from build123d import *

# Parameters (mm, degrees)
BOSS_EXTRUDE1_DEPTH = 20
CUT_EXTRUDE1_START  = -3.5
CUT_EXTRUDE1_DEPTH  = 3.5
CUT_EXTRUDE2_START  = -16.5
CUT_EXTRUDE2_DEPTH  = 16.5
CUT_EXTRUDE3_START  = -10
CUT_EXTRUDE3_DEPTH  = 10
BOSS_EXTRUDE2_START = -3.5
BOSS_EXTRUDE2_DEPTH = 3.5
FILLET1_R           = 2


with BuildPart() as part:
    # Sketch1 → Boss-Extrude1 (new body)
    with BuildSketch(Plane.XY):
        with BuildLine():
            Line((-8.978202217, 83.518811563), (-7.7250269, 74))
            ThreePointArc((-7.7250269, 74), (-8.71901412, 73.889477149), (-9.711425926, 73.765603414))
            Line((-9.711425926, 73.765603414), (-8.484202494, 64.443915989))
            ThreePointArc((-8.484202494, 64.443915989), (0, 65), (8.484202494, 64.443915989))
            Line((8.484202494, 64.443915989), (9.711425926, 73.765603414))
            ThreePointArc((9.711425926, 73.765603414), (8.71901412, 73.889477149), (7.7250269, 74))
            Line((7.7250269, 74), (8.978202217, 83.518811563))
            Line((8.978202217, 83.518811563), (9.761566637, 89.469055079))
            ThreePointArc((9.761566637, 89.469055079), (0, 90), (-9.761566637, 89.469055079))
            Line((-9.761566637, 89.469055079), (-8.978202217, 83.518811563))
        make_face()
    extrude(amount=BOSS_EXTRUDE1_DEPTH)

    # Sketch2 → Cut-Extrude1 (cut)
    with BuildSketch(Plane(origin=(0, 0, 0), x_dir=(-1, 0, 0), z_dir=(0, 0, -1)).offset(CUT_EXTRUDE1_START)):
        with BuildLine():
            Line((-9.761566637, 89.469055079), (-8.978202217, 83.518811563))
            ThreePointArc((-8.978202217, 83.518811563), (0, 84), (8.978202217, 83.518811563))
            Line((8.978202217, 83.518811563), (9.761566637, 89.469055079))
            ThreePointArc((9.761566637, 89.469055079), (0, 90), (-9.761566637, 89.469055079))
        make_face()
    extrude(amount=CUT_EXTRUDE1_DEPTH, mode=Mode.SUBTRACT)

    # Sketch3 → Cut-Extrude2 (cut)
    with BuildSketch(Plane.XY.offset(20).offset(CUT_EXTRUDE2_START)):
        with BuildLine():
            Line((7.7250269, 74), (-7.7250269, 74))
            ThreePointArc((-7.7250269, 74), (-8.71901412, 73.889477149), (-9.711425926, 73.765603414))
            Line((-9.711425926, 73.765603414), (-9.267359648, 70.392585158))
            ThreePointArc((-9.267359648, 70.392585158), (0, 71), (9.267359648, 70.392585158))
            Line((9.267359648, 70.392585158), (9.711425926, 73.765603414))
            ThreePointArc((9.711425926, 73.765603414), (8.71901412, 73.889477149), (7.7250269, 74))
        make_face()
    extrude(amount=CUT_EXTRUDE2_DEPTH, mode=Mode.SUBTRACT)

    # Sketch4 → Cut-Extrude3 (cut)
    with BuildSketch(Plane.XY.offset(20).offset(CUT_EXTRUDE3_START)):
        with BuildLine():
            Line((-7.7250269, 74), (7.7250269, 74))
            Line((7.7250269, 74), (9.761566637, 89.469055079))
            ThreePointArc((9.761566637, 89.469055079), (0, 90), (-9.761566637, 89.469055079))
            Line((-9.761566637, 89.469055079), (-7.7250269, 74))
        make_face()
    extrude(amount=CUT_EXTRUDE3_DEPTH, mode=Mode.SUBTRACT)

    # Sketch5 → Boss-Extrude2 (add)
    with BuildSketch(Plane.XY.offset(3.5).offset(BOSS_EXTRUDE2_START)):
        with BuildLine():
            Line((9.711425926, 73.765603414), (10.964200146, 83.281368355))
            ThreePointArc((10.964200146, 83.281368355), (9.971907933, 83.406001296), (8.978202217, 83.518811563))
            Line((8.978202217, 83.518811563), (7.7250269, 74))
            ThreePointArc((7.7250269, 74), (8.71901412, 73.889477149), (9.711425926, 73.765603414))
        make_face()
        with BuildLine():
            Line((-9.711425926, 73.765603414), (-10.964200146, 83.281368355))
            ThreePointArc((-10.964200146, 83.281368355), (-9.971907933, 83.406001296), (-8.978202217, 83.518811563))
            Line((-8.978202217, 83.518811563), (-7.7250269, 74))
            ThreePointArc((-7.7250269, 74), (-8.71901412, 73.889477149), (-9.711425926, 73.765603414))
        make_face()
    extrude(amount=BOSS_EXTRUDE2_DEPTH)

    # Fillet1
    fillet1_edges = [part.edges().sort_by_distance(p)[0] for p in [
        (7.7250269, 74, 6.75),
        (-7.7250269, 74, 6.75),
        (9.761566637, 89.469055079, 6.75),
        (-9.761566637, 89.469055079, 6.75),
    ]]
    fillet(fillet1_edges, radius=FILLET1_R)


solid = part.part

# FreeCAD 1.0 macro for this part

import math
import FreeCAD as App
import Part
import Sketcher

V = App.Vector
Q = App.Units.Quantity


def edges_at(feature, points):
    """Names of the edges that pass closest to the given points."""
    edges = feature.Shape.Edges
    near = lambda p: min(range(len(edges)), key=lambda i: edges[i].distToShape(Part.Vertex(*p))[0])
    return sorted({f"Edge{near(p) + 1}" for p in points})

doc = App.newDocument("Part")
params = doc.addObject("Spreadsheet::Sheet", "Params")
for row, (alias, value) in enumerate([
    ("sketch1_radius", "65 mm"),
    ("sketch1_radius2", "90 mm"),
    ("pad1_length", "20 mm"),
    ("sketch2_radius", "84 mm"),
    ("sketch2_radius2", "90 mm"),
    ("pocket1_length", "3.5 mm"),
    ("sketch3_radius", "71 mm"),
    ("pocket2_length", "16.5 mm"),
    ("sketch4_radius", "90 mm"),
    ("pocket3_length", "10 mm"),
    ("pad2_length", "3.5 mm"),
    ("fillet_radius", "2 mm"),
], start=1):
    params.set(f"A{row}", alias)
    params.set(f"B{row}", "=" + value)
    params.setAlias(f"B{row}", alias)

body = doc.addObject("PartDesign::Body", "Body")

sketch1 = body.newObject("Sketcher::SketchObject", "Sketch")
sketch1.AttachmentSupport = (doc.getObject("XY_Plane"), [""])
sketch1.MapMode = "FlatFace"
sketch1.addGeometry(Part.LineSegment(V(-8.978202, 83.518812, 0), V(-7.725027, 74, 0)), False)
sketch1.addGeometry(Part.ArcOfCircle(Part.Circle(V(0, 0, 0), V(0, 0, 1), 74.402124), math.radians(95.959649), math.radians(97.5)), False)
sketch1.addGeometry(Part.LineSegment(V(-9.711426, 73.765603, 0), V(-8.484202, 64.443916, 0)), False)
sketch1.addGeometry(Part.ArcOfCircle(Part.Circle(V(0, 0, 0), V(0, 0, 1), 65), math.radians(82.5), math.radians(97.5)), False)
sketch1.addGeometry(Part.LineSegment(V(8.484202, 64.443916, 0), V(9.711426, 73.765603, 0)), False)
sketch1.addGeometry(Part.ArcOfCircle(Part.Circle(V(0, 0, 0), V(0, 0, 1), 74.402124), math.radians(82.5), math.radians(84.040351)), False)
sketch1.addGeometry(Part.LineSegment(V(7.725027, 74, 0), V(8.978202, 83.518812, 0)), False)
sketch1.addGeometry(Part.LineSegment(V(8.978202, 83.518812, 0), V(9.761567, 89.469055, 0)), False)
sketch1.addGeometry(Part.ArcOfCircle(Part.Circle(V(0, 0, 0), V(0, 0, 1), 90), math.radians(83.773344), math.radians(96.226656)), False)
sketch1.addGeometry(Part.LineSegment(V(-9.761567, 89.469055, 0), V(-8.978202, 83.518812, 0)), False)
sketch1.addConstraint(Sketcher.Constraint("Coincident", 0, 2, 1, 1))
sketch1.addConstraint(Sketcher.Constraint("Coincident", 1, 2, 2, 1))
sketch1.addConstraint(Sketcher.Constraint("Coincident", 2, 2, 3, 2))
sketch1.addConstraint(Sketcher.Constraint("Coincident", 3, 1, 4, 1))
sketch1.addConstraint(Sketcher.Constraint("Coincident", 4, 2, 5, 1))
sketch1.addConstraint(Sketcher.Constraint("Coincident", 5, 2, 6, 1))
sketch1.addConstraint(Sketcher.Constraint("Coincident", 6, 2, 7, 1))
sketch1.addConstraint(Sketcher.Constraint("Coincident", 7, 2, 8, 1))
sketch1.addConstraint(Sketcher.Constraint("Coincident", 8, 2, 9, 1))
sketch1.addConstraint(Sketcher.Constraint("Coincident", 9, 2, 0, 1))
sketch1.addConstraint(Sketcher.Constraint("Coincident", 1, 3, -1, 1))
sketch1.addConstraint(Sketcher.Constraint("Coincident", 3, 3, -1, 1))
sketch1.addConstraint(Sketcher.Constraint("Coincident", 5, 3, -1, 1))
sketch1.addConstraint(Sketcher.Constraint("Coincident", 8, 3, -1, 1))
sketch1.addConstraint(Sketcher.Constraint("Equal", 1, 5))
sketch1.addConstraint(Sketcher.Constraint("Symmetric", 6, 2, 9, 2, -2))
sketch1.addConstraint(Sketcher.Constraint("Parallel", 0, 2))
sketch1.addConstraint(Sketcher.Constraint("Parallel", 4, 6))
sketch1.addConstraint(Sketcher.Constraint("Parallel", 6, 7))
sketch1.addConstraint(Sketcher.Constraint("Parallel", 2, 9))
sketch1.addConstraint(Sketcher.Constraint("Horizontal", 2, 2, 3, 1))
sketch1.addConstraint(Sketcher.Constraint("Horizontal", 1, 2, 4, 2))
sketch1.addConstraint(Sketcher.Constraint("Radius", 3, Q("65 mm")))
sketch1.addConstraint(Sketcher.Constraint("Radius", 8, Q("90 mm")))
sketch1.addConstraint(Sketcher.Constraint("DistanceY", -1, 1, 0, 2, Q("74 mm")))
sketch1.addConstraint(Sketcher.Constraint("Angle", 0, Q("-82.5 deg")))
sketch1.addConstraint(Sketcher.Constraint("Radius", 1, Q("74.402124 mm")))
sketch1.addConstraint(Sketcher.Constraint("DistanceX", 3, 1, 6, 2, Q("0.494 mm")))
sketch1.addConstraint(Sketcher.Constraint("Distance", 0, Q("9.600949 mm")))
sketch1.setExpression("Constraints[22]", "Params.sketch1_radius")
sketch1.setExpression("Constraints[23]", "Params.sketch1_radius2")
pad1 = body.newObject("PartDesign::Pad", "Pad")
pad1.Profile = sketch1
pad1.setExpression("Length", "Params.pad1_length")

sketch2 = body.newObject("Sketcher::SketchObject", "Sketch001")
sketch2.AttachmentSupport = (doc.getObject("XY_Plane"), [""])
sketch2.MapMode = "FlatFace"
sketch2.AttachmentOffset = App.Placement(V(0, 0, 3.5), App.Rotation())
sketch2.addGeometry(Part.LineSegment(V(9.761567, 89.469055, 0), V(8.978202, 83.518812, 0)), False)
sketch2.addGeometry(Part.ArcOfCircle(Part.Circle(V(0, 0, 0), V(0, 0, 1), 84), math.radians(83.864314), math.radians(96.135686)), False)
sketch2.addGeometry(Part.LineSegment(V(-8.978202, 83.518812, 0), V(-9.761567, 89.469055, 0)), False)
sketch2.addGeometry(Part.ArcOfCircle(Part.Circle(V(0, 0, 0), V(0, 0, 1), 90), math.radians(83.773344), math.radians(96.226656)), False)
sketch2.addConstraint(Sketcher.Constraint("Coincident", 0, 2, 1, 1))
sketch2.addConstraint(Sketcher.Constraint("Coincident", 1, 2, 2, 1))
sketch2.addConstraint(Sketcher.Constraint("Coincident", 2, 2, 3, 2))
sketch2.addConstraint(Sketcher.Constraint("Coincident", 3, 1, 0, 1))
sketch2.addConstraint(Sketcher.Constraint("Coincident", 1, 3, -1, 1))
sketch2.addConstraint(Sketcher.Constraint("Coincident", 3, 3, -1, 1))
sketch2.addConstraint(Sketcher.Constraint("Horizontal", 0, 2, 1, 2))
sketch2.addConstraint(Sketcher.Constraint("Horizontal", 2, 2, 3, 1))
sketch2.addConstraint(Sketcher.Constraint("Radius", 1, Q("84 mm")))
sketch2.addConstraint(Sketcher.Constraint("Radius", 3, Q("90 mm")))
sketch2.addConstraint(Sketcher.Constraint("Angle", 0, Q("-97.5 deg")))
sketch2.addConstraint(Sketcher.Constraint("DistanceY", -1, 1, 0, 2, Q("83.518812 mm")))
sketch2.setExpression("Constraints[8]", "Params.sketch2_radius")
sketch2.setExpression("Constraints[9]", "Params.sketch2_radius2")
pocket1 = body.newObject("PartDesign::Pocket", "Pocket")
pocket1.Profile = sketch2
pocket1.setExpression("Length", "Params.pocket1_length")

sketch3 = body.newObject("Sketcher::SketchObject", "Sketch002")
sketch3.AttachmentSupport = (doc.getObject("XY_Plane"), [""])
sketch3.MapMode = "FlatFace"
sketch3.AttachmentOffset = App.Placement(V(0, 0, 3.5), App.Rotation())
sketch3.addGeometry(Part.LineSegment(V(7.725027, 74, 0), V(-7.725027, 74, 0)), False)
sketch3.addGeometry(Part.ArcOfCircle(Part.Circle(V(0, 0, 0), V(0, 0, 1), 74.402124), math.radians(95.959649), math.radians(97.5)), False)
sketch3.addGeometry(Part.LineSegment(V(-9.711426, 73.765603, 0), V(-9.26736, 70.392585, 0)), False)
sketch3.addGeometry(Part.ArcOfCircle(Part.Circle(V(0, 0, 0), V(0, 0, 1), 71), math.radians(82.5), math.radians(97.5)), False)
sketch3.addGeometry(Part.LineSegment(V(9.26736, 70.392585, 0), V(9.711426, 73.765603, 0)), False)
sketch3.addGeometry(Part.ArcOfCircle(Part.Circle(V(0, 0, 0), V(0, 0, 1), 74.402124), math.radians(82.5), math.radians(84.040351)), False)
sketch3.addConstraint(Sketcher.Constraint("Coincident", 0, 2, 1, 1))
sketch3.addConstraint(Sketcher.Constraint("Coincident", 1, 2, 2, 1))
sketch3.addConstraint(Sketcher.Constraint("Coincident", 2, 2, 3, 2))
sketch3.addConstraint(Sketcher.Constraint("Coincident", 3, 1, 4, 1))
sketch3.addConstraint(Sketcher.Constraint("Coincident", 4, 2, 5, 1))
sketch3.addConstraint(Sketcher.Constraint("Coincident", 5, 2, 0, 1))
sketch3.addConstraint(Sketcher.Constraint("Horizontal", 0))
sketch3.addConstraint(Sketcher.Constraint("Coincident", 1, 3, -1, 1))
sketch3.addConstraint(Sketcher.Constraint("Coincident", 3, 3, -1, 1))
sketch3.addConstraint(Sketcher.Constraint("Coincident", 5, 3, -1, 1))
sketch3.addConstraint(Sketcher.Constraint("Equal", 1, 5))
sketch3.addConstraint(Sketcher.Constraint("Horizontal", 2, 2, 3, 1))
sketch3.addConstraint(Sketcher.Constraint("Horizontal", 1, 2, 4, 2))
sketch3.addConstraint(Sketcher.Constraint("Radius", 3, Q("71 mm")))
sketch3.addConstraint(Sketcher.Constraint("DistanceY", -1, 1, 0, 2, Q("74 mm")))
sketch3.addConstraint(Sketcher.Constraint("Angle", 2, Q("-82.5 deg")))
sketch3.addConstraint(Sketcher.Constraint("Radius", 1, Q("74.402124 mm")))
sketch3.addConstraint(Sketcher.Constraint("DistanceX", 1, 2, 0, 2, Q("1.986399 mm")))
sketch3.setExpression("Constraints[13]", "Params.sketch3_radius")
pocket2 = body.newObject("PartDesign::Pocket", "Pocket001")
pocket2.Profile = sketch3
pocket2.setExpression("Length", "Params.pocket2_length")
pocket2.Reversed = True

sketch4 = body.newObject("Sketcher::SketchObject", "Sketch003")
sketch4.AttachmentSupport = (doc.getObject("XY_Plane"), [""])
sketch4.MapMode = "FlatFace"
sketch4.AttachmentOffset = App.Placement(V(0, 0, 10), App.Rotation())
sketch4.addGeometry(Part.LineSegment(V(-7.725027, 74, 0), V(7.725027, 74, 0)), False)
sketch4.addGeometry(Part.LineSegment(V(7.725027, 74, 0), V(9.761567, 89.469055, 0)), False)
sketch4.addGeometry(Part.ArcOfCircle(Part.Circle(V(0, 0, 0), V(0, 0, 1), 90), math.radians(83.773344), math.radians(96.226656)), False)
sketch4.addGeometry(Part.LineSegment(V(-9.761567, 89.469055, 0), V(-7.725027, 74, 0)), False)
sketch4.addConstraint(Sketcher.Constraint("Coincident", 0, 2, 1, 1))
sketch4.addConstraint(Sketcher.Constraint("Coincident", 1, 2, 2, 1))
sketch4.addConstraint(Sketcher.Constraint("Coincident", 2, 2, 3, 1))
sketch4.addConstraint(Sketcher.Constraint("Coincident", 3, 2, 0, 1))
sketch4.addConstraint(Sketcher.Constraint("Horizontal", 0))
sketch4.addConstraint(Sketcher.Constraint("Coincident", 2, 3, -1, 1))
sketch4.addConstraint(Sketcher.Constraint("Horizontal", 1, 2, 2, 2))
sketch4.addConstraint(Sketcher.Constraint("Equal", 1, 3))
sketch4.addConstraint(Sketcher.Constraint("Radius", 2, Q("90 mm")))
sketch4.addConstraint(Sketcher.Constraint("DistanceY", -1, 1, 0, 2, Q("74 mm")))
sketch4.addConstraint(Sketcher.Constraint("Angle", 1, Q("82.5 deg")))
sketch4.addConstraint(Sketcher.Constraint("DistanceX", 0, 1, 0, 2, Q("15.450054 mm")))
sketch4.setExpression("Constraints[8]", "Params.sketch4_radius")
pocket3 = body.newObject("PartDesign::Pocket", "Pocket002")
pocket3.Profile = sketch4
pocket3.setExpression("Length", "Params.pocket3_length")
pocket3.Reversed = True

sketch5 = body.newObject("Sketcher::SketchObject", "Sketch004")
sketch5.AttachmentSupport = (doc.getObject("XY_Plane"), [""])
sketch5.MapMode = "FlatFace"
sketch5.addGeometry(Part.LineSegment(V(9.711426, 73.765603, 0), V(10.9642, 83.281368, 0)), False)
sketch5.addGeometry(Part.ArcOfCircle(Part.Circle(V(0.000001, 0.000007, 0), V(0, 0, 1), 83.999993), math.radians(82.5), math.radians(83.864314)), False)
sketch5.addGeometry(Part.LineSegment(V(8.978202, 83.518812, 0), V(7.725027, 74, 0)), False)
sketch5.addGeometry(Part.ArcOfCircle(Part.Circle(V(0, 0, 0), V(0, 0, 1), 74.402124), math.radians(82.5), math.radians(84.040351)), False)
sketch5.addGeometry(Part.LineSegment(V(-10.9642, 83.281368, 0), V(-9.711426, 73.765603, 0)), False)
sketch5.addGeometry(Part.ArcOfCircle(Part.Circle(V(0, 0, 0), V(0, 0, 1), 74.402124), math.radians(95.959649), math.radians(97.5)), False)
sketch5.addGeometry(Part.LineSegment(V(-7.725027, 74, 0), V(-8.978202, 83.518812, 0)), False)
sketch5.addGeometry(Part.ArcOfCircle(Part.Circle(V(-0.000001, 0.000007, 0), V(0, 0, 1), 83.999993), math.radians(96.135686), math.radians(97.5)), False)
sketch5.addConstraint(Sketcher.Constraint("Coincident", 0, 2, 1, 1))
sketch5.addConstraint(Sketcher.Constraint("Coincident", 1, 2, 2, 1))
sketch5.addConstraint(Sketcher.Constraint("Coincident", 2, 2, 3, 2))
sketch5.addConstraint(Sketcher.Constraint("Coincident", 3, 1, 0, 1))
sketch5.addConstraint(Sketcher.Constraint("Coincident", 4, 2, 5, 2))
sketch5.addConstraint(Sketcher.Constraint("Coincident", 5, 1, 6, 1))
sketch5.addConstraint(Sketcher.Constraint("Coincident", 6, 2, 7, 1))
sketch5.addConstraint(Sketcher.Constraint("Coincident", 7, 2, 4, 1))
sketch5.addConstraint(Sketcher.Constraint("Coincident", 1, 3, -1, 1))
sketch5.addConstraint(Sketcher.Constraint("Coincident", 3, 3, -1, 1))
sketch5.addConstraint(Sketcher.Constraint("Coincident", 5, 3, -1, 1))
sketch5.addConstraint(Sketcher.Constraint("Coincident", 7, 3, -1, 1))
sketch5.addConstraint(Sketcher.Constraint("Equal", 3, 5))
sketch5.addConstraint(Sketcher.Constraint("Equal", 1, 7))
sketch5.addConstraint(Sketcher.Constraint("Parallel", 0, 2))
sketch5.addConstraint(Sketcher.Constraint("Parallel", 4, 6))
sketch5.addConstraint(Sketcher.Constraint("Horizontal", 3, 1, 4, 2))
sketch5.addConstraint(Sketcher.Constraint("Horizontal", 2, 2, 5, 1))
sketch5.addConstraint(Sketcher.Constraint("Horizontal", 1, 2, 6, 2))
sketch5.addConstraint(Sketcher.Constraint("DistanceY", -1, 1, 2, 2, Q("74 mm")))
sketch5.addConstraint(Sketcher.Constraint("Angle", 0, Q("82.5 deg")))
sketch5.addConstraint(Sketcher.Constraint("Radius", 1, Q("83.999993 mm")))
sketch5.addConstraint(Sketcher.Constraint("Radius", 3, Q("74.402124 mm")))
sketch5.addConstraint(Sketcher.Constraint("DistanceX", -1, 1, 0, 2, Q("10.9642 mm")))
pad2 = body.newObject("PartDesign::Pad", "Pad001")
pad2.Profile = sketch5
pad2.setExpression("Length", "Params.pad2_length")
doc.recompute()

fillet = body.newObject("PartDesign::Fillet", "Fillet")
fillet.Base = (pad2, edges_at(pad2, [
    (7.725, 74, 6.75),
    (-7.725, 74, 6.75),
    (9.762, 89.469, 6.75),
    (-9.762, 89.469, 6.75),
]))
fillet.setExpression("Radius", "Params.fillet_radius")

doc.recompute()
